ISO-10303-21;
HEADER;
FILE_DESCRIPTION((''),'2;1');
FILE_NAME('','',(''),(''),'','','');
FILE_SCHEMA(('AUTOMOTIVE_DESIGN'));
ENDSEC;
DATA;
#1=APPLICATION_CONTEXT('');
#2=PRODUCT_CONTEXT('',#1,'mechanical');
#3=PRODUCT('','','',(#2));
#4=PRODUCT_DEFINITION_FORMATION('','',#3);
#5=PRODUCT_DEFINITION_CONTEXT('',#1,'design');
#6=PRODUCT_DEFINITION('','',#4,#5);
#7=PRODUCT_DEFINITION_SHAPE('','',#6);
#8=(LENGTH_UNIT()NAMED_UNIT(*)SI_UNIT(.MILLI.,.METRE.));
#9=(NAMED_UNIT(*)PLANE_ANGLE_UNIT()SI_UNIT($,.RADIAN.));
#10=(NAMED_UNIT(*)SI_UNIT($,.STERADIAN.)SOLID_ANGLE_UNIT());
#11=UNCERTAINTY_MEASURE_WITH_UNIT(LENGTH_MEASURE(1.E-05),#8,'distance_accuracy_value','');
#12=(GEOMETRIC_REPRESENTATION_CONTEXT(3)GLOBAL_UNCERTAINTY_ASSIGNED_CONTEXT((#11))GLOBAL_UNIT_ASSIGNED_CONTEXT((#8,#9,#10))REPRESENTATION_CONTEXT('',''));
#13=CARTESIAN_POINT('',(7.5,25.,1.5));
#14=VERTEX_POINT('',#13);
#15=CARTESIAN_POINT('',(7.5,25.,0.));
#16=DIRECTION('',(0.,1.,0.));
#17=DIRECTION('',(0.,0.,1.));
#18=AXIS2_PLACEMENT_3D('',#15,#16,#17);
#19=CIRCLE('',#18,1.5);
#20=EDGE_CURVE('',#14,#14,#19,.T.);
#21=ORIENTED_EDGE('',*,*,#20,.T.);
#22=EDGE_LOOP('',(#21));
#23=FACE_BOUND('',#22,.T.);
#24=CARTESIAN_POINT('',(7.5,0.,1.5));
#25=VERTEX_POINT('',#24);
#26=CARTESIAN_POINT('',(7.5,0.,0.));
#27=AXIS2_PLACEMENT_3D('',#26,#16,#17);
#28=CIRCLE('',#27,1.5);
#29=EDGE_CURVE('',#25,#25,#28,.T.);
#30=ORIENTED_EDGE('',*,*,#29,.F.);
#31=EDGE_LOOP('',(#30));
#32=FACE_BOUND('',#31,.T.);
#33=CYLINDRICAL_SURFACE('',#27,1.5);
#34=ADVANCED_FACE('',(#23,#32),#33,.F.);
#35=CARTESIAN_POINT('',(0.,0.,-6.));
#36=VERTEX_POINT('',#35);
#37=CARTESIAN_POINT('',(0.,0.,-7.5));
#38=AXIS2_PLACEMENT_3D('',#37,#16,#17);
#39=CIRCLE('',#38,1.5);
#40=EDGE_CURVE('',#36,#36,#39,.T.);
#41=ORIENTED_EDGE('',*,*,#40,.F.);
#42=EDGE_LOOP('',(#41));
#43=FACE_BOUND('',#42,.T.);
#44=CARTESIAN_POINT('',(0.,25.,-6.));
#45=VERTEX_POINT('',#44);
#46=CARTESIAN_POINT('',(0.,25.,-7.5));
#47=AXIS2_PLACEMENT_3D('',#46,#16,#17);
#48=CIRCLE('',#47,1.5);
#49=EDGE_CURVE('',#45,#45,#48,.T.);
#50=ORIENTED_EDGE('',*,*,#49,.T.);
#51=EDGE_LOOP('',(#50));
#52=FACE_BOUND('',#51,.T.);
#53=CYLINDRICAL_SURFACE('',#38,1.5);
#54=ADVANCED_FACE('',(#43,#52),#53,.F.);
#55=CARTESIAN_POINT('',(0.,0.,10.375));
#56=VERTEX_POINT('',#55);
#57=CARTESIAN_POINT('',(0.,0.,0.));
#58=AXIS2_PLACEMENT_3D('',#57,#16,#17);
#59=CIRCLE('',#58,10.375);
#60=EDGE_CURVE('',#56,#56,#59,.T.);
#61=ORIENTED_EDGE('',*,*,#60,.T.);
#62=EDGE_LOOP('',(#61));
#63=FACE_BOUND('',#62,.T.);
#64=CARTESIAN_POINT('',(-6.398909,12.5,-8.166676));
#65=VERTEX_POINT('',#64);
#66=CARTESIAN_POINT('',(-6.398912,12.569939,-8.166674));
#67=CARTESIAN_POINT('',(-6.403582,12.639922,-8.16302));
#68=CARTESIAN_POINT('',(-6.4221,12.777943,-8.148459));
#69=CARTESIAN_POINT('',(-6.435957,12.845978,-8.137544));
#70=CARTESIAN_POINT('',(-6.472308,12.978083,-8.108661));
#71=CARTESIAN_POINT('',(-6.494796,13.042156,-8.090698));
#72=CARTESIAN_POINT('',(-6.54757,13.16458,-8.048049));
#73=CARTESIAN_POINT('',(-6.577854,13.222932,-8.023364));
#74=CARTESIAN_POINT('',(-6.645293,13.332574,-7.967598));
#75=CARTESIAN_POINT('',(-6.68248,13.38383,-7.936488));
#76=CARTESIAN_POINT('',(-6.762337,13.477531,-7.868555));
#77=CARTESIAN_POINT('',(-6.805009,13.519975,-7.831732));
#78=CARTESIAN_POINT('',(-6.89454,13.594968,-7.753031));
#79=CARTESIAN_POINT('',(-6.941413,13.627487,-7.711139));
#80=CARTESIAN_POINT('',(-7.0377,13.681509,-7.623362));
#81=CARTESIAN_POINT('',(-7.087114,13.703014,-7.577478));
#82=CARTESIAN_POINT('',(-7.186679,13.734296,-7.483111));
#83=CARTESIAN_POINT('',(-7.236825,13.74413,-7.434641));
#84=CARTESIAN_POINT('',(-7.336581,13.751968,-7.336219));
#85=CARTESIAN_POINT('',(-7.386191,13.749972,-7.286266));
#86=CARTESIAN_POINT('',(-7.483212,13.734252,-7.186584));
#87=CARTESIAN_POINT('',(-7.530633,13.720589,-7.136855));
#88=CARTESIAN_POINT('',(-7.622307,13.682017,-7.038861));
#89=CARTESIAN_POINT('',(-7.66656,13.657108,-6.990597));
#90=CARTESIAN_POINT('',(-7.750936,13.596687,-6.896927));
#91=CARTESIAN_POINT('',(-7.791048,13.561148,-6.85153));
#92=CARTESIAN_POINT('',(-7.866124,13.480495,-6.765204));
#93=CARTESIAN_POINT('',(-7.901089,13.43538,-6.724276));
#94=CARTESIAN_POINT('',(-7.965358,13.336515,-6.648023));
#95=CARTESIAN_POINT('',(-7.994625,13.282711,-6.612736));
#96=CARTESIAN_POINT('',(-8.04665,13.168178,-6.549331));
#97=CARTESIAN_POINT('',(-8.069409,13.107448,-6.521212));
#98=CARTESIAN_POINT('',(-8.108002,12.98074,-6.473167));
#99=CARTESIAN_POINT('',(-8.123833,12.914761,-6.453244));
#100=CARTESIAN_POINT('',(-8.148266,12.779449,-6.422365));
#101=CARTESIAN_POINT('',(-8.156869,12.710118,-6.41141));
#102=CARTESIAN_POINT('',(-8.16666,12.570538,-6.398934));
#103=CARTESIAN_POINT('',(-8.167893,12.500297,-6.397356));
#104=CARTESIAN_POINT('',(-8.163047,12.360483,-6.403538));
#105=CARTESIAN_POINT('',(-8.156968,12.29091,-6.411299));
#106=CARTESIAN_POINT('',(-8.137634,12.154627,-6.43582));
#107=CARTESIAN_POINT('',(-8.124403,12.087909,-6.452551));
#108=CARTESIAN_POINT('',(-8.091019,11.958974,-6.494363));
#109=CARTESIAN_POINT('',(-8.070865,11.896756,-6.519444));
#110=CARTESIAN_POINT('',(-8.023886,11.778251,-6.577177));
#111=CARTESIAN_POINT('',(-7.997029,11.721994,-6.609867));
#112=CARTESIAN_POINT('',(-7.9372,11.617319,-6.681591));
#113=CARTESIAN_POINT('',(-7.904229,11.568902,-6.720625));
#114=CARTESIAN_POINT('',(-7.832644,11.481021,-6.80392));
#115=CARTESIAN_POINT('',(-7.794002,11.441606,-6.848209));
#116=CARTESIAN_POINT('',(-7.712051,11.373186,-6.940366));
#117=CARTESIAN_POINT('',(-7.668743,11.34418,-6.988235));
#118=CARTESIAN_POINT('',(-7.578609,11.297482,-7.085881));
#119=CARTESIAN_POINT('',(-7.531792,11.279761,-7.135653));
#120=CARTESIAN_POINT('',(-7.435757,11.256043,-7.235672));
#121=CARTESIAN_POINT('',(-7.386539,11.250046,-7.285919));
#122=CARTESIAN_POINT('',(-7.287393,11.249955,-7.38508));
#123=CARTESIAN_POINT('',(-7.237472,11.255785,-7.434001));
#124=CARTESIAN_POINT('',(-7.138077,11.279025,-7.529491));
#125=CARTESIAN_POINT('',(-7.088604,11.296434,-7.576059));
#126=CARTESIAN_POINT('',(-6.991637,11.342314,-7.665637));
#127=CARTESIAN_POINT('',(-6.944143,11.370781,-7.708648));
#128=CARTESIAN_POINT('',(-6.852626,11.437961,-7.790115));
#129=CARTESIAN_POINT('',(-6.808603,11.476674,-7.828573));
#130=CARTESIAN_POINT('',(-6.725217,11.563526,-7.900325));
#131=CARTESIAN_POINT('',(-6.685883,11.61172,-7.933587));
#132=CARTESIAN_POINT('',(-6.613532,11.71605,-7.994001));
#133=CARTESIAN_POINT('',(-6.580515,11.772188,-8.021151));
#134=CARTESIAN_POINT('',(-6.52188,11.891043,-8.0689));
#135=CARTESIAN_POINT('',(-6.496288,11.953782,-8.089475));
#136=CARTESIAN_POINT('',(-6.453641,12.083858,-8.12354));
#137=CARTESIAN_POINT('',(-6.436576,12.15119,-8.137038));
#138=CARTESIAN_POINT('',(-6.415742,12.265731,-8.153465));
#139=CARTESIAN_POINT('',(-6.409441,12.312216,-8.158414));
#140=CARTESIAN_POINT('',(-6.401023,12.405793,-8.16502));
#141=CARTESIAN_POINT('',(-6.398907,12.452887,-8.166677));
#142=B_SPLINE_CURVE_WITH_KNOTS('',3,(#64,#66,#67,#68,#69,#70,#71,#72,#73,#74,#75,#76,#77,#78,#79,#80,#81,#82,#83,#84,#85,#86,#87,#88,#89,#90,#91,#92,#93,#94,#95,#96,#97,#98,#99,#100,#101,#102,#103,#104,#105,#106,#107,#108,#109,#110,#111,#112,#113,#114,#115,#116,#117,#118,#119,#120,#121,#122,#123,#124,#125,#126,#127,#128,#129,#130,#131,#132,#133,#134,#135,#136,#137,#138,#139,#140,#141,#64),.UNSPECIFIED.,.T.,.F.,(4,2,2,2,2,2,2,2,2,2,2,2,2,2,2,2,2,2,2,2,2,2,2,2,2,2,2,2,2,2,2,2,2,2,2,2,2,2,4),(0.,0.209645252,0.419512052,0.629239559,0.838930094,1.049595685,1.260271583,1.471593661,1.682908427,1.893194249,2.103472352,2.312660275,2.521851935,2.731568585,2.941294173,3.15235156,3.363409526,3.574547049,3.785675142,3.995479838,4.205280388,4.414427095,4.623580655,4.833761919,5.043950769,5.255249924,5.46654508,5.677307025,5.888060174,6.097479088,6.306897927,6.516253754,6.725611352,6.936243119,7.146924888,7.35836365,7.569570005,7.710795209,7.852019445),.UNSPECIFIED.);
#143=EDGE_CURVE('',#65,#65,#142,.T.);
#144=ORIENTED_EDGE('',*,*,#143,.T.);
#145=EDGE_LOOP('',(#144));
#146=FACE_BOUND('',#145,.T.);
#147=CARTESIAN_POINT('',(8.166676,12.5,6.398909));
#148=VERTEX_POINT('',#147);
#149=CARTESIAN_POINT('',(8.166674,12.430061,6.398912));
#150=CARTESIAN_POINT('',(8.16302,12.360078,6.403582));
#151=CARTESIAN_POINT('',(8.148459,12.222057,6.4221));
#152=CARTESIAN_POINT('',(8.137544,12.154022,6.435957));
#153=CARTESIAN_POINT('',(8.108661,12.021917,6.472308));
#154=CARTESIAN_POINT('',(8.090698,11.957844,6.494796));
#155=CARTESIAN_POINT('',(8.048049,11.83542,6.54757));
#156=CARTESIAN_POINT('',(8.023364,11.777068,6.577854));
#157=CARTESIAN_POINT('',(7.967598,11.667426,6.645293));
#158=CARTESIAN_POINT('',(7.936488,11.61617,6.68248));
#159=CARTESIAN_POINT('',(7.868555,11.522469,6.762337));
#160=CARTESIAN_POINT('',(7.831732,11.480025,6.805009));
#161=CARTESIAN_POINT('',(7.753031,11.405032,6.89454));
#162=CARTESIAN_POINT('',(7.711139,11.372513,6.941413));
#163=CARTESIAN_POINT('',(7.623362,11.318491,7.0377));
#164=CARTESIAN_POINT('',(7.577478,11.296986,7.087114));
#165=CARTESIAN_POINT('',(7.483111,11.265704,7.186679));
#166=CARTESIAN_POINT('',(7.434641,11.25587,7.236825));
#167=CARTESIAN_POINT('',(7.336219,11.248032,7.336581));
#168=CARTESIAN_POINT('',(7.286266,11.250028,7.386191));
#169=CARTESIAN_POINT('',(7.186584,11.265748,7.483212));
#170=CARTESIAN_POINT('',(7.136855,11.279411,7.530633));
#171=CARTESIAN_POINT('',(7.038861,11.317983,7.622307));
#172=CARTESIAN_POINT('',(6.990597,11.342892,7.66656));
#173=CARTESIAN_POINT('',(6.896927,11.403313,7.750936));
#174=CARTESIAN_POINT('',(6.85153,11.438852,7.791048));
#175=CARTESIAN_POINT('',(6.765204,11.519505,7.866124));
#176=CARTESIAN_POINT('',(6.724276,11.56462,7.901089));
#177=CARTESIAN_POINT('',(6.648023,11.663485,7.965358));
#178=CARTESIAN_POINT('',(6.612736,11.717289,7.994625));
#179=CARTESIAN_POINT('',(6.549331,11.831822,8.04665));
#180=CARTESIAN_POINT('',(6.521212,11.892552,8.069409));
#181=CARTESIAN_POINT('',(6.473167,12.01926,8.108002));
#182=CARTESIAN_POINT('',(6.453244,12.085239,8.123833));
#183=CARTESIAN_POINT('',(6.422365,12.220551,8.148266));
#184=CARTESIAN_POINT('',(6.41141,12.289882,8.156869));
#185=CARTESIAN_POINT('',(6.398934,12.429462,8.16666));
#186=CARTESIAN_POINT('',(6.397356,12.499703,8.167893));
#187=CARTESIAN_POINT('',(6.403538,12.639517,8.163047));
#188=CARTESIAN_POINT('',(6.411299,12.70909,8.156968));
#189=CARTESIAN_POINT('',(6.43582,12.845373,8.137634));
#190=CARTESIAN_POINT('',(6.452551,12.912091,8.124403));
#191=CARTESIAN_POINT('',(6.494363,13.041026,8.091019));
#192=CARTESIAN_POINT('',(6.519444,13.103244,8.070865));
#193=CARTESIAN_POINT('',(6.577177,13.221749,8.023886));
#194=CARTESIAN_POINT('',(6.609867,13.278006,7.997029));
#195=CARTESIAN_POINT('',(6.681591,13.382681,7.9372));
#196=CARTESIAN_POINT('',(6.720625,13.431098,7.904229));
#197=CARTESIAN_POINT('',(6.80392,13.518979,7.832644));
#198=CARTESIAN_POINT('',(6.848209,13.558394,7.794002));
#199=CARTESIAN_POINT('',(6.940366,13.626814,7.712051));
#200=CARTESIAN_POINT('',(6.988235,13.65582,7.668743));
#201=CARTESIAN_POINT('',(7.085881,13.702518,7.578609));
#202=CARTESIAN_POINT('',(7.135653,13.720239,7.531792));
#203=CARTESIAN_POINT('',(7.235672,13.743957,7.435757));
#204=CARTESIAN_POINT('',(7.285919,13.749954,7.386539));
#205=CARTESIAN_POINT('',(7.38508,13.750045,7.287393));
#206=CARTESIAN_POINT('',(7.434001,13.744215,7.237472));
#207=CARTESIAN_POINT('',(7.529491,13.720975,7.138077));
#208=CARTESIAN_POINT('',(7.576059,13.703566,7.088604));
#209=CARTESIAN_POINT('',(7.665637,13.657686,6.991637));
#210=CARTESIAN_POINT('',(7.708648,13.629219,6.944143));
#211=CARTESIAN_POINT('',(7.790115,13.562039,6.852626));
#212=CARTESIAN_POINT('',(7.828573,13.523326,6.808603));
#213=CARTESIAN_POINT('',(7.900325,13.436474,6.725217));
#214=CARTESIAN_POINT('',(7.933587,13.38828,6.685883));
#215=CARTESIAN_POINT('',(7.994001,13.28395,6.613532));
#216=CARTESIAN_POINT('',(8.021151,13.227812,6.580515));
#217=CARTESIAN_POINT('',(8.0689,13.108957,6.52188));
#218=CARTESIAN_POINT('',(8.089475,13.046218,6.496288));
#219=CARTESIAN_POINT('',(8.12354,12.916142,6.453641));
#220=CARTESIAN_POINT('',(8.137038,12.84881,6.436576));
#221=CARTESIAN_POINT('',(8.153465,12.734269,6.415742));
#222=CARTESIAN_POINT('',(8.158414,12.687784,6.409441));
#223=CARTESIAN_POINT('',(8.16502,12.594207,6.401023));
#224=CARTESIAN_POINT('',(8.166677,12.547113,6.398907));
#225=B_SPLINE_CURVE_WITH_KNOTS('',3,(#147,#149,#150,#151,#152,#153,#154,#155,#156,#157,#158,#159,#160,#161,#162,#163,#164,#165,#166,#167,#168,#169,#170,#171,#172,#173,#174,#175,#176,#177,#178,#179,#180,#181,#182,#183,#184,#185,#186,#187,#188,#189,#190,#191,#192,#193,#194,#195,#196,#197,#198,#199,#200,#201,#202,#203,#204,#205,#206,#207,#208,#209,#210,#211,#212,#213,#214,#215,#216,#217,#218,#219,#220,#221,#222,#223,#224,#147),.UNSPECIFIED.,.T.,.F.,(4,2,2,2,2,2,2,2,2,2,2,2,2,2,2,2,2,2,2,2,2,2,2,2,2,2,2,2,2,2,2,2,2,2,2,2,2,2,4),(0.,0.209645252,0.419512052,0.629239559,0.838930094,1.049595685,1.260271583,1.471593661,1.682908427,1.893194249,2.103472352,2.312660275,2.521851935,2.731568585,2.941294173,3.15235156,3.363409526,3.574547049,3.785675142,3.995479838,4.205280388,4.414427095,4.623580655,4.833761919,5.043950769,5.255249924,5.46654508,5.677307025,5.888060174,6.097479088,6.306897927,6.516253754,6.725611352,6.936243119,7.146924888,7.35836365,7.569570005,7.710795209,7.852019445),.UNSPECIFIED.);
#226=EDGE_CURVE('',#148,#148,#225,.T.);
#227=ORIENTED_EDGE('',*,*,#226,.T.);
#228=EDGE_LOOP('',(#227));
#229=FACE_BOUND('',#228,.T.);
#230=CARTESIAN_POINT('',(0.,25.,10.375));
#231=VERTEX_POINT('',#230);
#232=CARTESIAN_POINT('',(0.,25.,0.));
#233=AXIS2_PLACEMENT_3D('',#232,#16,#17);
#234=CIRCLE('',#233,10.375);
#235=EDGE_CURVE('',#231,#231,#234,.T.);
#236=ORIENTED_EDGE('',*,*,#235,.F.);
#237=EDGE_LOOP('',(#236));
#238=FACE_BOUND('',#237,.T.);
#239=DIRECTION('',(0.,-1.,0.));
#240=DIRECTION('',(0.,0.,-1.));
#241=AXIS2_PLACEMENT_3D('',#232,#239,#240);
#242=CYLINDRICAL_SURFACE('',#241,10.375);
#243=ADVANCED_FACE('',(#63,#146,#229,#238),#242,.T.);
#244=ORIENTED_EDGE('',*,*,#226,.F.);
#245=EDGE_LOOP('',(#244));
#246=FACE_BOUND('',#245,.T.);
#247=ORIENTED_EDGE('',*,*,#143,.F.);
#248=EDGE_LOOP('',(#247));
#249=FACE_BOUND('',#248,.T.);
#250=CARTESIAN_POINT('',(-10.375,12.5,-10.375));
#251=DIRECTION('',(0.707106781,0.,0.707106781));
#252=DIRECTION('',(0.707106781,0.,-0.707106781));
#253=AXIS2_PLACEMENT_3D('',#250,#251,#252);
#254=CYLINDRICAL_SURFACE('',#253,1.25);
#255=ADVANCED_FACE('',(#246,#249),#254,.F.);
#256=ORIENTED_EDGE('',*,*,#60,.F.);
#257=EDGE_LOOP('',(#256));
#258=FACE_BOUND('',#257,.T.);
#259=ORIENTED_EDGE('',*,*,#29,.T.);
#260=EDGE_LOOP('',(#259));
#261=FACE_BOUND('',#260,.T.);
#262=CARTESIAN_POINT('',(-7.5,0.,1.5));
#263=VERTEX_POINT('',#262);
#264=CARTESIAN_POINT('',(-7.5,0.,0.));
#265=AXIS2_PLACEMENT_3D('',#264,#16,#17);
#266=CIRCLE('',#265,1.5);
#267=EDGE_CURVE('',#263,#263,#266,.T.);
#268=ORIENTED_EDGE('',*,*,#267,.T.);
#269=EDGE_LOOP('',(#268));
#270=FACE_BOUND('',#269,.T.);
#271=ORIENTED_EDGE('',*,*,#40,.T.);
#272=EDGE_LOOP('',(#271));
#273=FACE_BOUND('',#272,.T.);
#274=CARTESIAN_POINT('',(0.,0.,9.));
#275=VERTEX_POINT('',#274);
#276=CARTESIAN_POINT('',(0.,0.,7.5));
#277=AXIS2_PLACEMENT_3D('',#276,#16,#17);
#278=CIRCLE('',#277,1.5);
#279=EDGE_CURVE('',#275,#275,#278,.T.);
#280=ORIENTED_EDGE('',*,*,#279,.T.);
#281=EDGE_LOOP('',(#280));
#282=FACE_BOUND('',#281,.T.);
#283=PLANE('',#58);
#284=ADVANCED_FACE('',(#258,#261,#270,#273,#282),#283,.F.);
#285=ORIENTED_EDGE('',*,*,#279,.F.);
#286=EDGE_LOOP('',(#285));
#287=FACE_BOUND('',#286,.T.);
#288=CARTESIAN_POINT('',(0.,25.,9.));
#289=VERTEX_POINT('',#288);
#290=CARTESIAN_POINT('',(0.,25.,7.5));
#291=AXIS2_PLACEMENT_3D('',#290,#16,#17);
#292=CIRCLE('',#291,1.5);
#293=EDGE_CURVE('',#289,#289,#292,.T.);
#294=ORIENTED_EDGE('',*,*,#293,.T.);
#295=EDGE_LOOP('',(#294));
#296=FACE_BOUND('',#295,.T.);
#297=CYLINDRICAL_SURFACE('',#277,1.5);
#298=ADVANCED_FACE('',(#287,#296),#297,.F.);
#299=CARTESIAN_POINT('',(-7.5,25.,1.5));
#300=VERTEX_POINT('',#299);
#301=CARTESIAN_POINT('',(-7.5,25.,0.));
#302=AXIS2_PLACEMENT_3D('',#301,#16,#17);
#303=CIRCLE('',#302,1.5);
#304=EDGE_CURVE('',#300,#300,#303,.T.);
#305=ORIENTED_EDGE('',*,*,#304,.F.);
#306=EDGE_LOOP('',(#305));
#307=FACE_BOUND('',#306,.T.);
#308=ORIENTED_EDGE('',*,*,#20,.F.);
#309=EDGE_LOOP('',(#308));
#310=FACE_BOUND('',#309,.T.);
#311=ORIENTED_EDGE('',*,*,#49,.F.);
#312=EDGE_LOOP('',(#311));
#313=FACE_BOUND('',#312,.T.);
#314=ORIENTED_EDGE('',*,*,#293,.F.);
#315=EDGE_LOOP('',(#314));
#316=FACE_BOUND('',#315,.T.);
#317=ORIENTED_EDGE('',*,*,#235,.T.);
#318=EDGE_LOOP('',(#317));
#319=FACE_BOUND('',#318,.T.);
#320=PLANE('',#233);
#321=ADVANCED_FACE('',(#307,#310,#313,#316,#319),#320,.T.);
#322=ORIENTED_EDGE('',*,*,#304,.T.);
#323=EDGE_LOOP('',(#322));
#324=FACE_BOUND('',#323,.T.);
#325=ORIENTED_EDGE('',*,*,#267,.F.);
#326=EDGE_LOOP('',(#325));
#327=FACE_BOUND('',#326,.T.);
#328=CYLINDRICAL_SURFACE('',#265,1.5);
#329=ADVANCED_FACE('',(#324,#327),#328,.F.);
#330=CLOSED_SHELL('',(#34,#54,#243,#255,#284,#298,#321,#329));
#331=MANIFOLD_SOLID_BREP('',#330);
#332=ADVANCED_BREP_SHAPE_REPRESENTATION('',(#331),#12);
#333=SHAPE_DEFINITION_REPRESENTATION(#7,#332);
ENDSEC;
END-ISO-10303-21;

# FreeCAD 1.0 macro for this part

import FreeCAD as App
import Part
import Sketcher

V = App.Vector

doc = App.newDocument("Part")
body = doc.addObject("PartDesign::Body", "Body")

# Sketch on XZ plane
sketch1 = body.newObject("Sketcher::SketchObject", "Sketch")
sketch1.AttachmentSupport = (doc.getObject("XZ_Plane"), [""])
sketch1.MapMode = "FlatFace"
sketch1.addGeometry(Part.Circle(V(0, 0, 0), V(0, 0, 1), 10), False)
sketch1.addConstraint(Sketcher.Constraint("Coincident", 0, 3, -1, 1))
sketch1.addConstraint(Sketcher.Constraint("Diameter", 0, 20.75))
pad1 = body.newObject("PartDesign::Pad", "Pad")
pad1.Profile = sketch1
pad1.Length = 25
pad1.Reversed = True

# Sketch on XZ plane
sketch2 = body.newObject("Sketcher::SketchObject", "Sketch001")
sketch2.AttachmentSupport = (doc.getObject("XZ_Plane"), [""])
sketch2.MapMode = "FlatFace"
sketch2.AttachmentOffset = App.Placement(V(0, 0, -25), App.Rotation())
sketch2.addGeometry(Part.Circle(V(0, -7.5, 0), V(0, 0, 1), 1.5), False)
sketch2.addGeometry(Part.Circle(V(-7.5, 0, 0), V(0, 0, 1), 1.5), False)
sketch2.addGeometry(Part.Circle(V(7.5, 0, 0), V(0, 0, 1), 1.5), False)
sketch2.addGeometry(Part.Circle(V(0, 7.5, 0), V(0, 0, 1), 1.5), False)
sketch2.addConstraint(Sketcher.Constraint("Equal", 0, 1))
sketch2.addConstraint(Sketcher.Constraint("Equal", 1, 2))
sketch2.addConstraint(Sketcher.Constraint("Equal", 2, 3))
sketch2.addConstraint(Sketcher.Constraint("Symmetric", 1, 3, 2, 3, -1, 1))
sketch2.addConstraint(Sketcher.Constraint("Symmetric", 0, 3, 3, 3, -1, 1))
sketch2.addConstraint(Sketcher.Constraint("PointOnObject", 0, 3, -2))
sketch2.addConstraint(Sketcher.Constraint("PointOnObject", 1, 3, -1))
sketch2.addConstraint(Sketcher.Constraint("Diameter", 0, 3.0))
sketch2.addConstraint(Sketcher.Constraint("DistanceX", 1, 3, 2, 3, 15.0))
sketch2.addConstraint(Sketcher.Constraint("DistanceY", 0, 3, 3, 3, 15.0))
pocket1 = body.newObject("PartDesign::Pocket", "Pocket")
pocket1.Profile = sketch2
pocket1.Type = "ThroughAll"
pocket1.Reversed = True

# Sketch on an angled plane
sketch3 = body.newObject("Sketcher::SketchObject", "Sketch002")
sketch3.Placement = App.Placement(V(0, 0, 0), App.Rotation(V(0, 1, 0), V(-0.707106781, 0, 0.707106781), V(0.707106781, 0, 0.707106781), "ZXY"))
sketch3.addGeometry(Part.Circle(V(12.5, 0, 0), V(0, 0, 1), 1.2), False)
sketch3.addConstraint(Sketcher.Constraint("PointOnObject", 0, 3, -1))
sketch3.addConstraint(Sketcher.Constraint("Diameter", 0, 2.5))
sketch3.addConstraint(Sketcher.Constraint("DistanceX", -1, 1, 0, 3, 12.5))
pocket2 = body.newObject("PartDesign::Pocket", "Pocket001")
pocket2.Profile = sketch3
pocket2.Type = "ThroughAll"
pocket2.Midplane = True

doc.recompute()
